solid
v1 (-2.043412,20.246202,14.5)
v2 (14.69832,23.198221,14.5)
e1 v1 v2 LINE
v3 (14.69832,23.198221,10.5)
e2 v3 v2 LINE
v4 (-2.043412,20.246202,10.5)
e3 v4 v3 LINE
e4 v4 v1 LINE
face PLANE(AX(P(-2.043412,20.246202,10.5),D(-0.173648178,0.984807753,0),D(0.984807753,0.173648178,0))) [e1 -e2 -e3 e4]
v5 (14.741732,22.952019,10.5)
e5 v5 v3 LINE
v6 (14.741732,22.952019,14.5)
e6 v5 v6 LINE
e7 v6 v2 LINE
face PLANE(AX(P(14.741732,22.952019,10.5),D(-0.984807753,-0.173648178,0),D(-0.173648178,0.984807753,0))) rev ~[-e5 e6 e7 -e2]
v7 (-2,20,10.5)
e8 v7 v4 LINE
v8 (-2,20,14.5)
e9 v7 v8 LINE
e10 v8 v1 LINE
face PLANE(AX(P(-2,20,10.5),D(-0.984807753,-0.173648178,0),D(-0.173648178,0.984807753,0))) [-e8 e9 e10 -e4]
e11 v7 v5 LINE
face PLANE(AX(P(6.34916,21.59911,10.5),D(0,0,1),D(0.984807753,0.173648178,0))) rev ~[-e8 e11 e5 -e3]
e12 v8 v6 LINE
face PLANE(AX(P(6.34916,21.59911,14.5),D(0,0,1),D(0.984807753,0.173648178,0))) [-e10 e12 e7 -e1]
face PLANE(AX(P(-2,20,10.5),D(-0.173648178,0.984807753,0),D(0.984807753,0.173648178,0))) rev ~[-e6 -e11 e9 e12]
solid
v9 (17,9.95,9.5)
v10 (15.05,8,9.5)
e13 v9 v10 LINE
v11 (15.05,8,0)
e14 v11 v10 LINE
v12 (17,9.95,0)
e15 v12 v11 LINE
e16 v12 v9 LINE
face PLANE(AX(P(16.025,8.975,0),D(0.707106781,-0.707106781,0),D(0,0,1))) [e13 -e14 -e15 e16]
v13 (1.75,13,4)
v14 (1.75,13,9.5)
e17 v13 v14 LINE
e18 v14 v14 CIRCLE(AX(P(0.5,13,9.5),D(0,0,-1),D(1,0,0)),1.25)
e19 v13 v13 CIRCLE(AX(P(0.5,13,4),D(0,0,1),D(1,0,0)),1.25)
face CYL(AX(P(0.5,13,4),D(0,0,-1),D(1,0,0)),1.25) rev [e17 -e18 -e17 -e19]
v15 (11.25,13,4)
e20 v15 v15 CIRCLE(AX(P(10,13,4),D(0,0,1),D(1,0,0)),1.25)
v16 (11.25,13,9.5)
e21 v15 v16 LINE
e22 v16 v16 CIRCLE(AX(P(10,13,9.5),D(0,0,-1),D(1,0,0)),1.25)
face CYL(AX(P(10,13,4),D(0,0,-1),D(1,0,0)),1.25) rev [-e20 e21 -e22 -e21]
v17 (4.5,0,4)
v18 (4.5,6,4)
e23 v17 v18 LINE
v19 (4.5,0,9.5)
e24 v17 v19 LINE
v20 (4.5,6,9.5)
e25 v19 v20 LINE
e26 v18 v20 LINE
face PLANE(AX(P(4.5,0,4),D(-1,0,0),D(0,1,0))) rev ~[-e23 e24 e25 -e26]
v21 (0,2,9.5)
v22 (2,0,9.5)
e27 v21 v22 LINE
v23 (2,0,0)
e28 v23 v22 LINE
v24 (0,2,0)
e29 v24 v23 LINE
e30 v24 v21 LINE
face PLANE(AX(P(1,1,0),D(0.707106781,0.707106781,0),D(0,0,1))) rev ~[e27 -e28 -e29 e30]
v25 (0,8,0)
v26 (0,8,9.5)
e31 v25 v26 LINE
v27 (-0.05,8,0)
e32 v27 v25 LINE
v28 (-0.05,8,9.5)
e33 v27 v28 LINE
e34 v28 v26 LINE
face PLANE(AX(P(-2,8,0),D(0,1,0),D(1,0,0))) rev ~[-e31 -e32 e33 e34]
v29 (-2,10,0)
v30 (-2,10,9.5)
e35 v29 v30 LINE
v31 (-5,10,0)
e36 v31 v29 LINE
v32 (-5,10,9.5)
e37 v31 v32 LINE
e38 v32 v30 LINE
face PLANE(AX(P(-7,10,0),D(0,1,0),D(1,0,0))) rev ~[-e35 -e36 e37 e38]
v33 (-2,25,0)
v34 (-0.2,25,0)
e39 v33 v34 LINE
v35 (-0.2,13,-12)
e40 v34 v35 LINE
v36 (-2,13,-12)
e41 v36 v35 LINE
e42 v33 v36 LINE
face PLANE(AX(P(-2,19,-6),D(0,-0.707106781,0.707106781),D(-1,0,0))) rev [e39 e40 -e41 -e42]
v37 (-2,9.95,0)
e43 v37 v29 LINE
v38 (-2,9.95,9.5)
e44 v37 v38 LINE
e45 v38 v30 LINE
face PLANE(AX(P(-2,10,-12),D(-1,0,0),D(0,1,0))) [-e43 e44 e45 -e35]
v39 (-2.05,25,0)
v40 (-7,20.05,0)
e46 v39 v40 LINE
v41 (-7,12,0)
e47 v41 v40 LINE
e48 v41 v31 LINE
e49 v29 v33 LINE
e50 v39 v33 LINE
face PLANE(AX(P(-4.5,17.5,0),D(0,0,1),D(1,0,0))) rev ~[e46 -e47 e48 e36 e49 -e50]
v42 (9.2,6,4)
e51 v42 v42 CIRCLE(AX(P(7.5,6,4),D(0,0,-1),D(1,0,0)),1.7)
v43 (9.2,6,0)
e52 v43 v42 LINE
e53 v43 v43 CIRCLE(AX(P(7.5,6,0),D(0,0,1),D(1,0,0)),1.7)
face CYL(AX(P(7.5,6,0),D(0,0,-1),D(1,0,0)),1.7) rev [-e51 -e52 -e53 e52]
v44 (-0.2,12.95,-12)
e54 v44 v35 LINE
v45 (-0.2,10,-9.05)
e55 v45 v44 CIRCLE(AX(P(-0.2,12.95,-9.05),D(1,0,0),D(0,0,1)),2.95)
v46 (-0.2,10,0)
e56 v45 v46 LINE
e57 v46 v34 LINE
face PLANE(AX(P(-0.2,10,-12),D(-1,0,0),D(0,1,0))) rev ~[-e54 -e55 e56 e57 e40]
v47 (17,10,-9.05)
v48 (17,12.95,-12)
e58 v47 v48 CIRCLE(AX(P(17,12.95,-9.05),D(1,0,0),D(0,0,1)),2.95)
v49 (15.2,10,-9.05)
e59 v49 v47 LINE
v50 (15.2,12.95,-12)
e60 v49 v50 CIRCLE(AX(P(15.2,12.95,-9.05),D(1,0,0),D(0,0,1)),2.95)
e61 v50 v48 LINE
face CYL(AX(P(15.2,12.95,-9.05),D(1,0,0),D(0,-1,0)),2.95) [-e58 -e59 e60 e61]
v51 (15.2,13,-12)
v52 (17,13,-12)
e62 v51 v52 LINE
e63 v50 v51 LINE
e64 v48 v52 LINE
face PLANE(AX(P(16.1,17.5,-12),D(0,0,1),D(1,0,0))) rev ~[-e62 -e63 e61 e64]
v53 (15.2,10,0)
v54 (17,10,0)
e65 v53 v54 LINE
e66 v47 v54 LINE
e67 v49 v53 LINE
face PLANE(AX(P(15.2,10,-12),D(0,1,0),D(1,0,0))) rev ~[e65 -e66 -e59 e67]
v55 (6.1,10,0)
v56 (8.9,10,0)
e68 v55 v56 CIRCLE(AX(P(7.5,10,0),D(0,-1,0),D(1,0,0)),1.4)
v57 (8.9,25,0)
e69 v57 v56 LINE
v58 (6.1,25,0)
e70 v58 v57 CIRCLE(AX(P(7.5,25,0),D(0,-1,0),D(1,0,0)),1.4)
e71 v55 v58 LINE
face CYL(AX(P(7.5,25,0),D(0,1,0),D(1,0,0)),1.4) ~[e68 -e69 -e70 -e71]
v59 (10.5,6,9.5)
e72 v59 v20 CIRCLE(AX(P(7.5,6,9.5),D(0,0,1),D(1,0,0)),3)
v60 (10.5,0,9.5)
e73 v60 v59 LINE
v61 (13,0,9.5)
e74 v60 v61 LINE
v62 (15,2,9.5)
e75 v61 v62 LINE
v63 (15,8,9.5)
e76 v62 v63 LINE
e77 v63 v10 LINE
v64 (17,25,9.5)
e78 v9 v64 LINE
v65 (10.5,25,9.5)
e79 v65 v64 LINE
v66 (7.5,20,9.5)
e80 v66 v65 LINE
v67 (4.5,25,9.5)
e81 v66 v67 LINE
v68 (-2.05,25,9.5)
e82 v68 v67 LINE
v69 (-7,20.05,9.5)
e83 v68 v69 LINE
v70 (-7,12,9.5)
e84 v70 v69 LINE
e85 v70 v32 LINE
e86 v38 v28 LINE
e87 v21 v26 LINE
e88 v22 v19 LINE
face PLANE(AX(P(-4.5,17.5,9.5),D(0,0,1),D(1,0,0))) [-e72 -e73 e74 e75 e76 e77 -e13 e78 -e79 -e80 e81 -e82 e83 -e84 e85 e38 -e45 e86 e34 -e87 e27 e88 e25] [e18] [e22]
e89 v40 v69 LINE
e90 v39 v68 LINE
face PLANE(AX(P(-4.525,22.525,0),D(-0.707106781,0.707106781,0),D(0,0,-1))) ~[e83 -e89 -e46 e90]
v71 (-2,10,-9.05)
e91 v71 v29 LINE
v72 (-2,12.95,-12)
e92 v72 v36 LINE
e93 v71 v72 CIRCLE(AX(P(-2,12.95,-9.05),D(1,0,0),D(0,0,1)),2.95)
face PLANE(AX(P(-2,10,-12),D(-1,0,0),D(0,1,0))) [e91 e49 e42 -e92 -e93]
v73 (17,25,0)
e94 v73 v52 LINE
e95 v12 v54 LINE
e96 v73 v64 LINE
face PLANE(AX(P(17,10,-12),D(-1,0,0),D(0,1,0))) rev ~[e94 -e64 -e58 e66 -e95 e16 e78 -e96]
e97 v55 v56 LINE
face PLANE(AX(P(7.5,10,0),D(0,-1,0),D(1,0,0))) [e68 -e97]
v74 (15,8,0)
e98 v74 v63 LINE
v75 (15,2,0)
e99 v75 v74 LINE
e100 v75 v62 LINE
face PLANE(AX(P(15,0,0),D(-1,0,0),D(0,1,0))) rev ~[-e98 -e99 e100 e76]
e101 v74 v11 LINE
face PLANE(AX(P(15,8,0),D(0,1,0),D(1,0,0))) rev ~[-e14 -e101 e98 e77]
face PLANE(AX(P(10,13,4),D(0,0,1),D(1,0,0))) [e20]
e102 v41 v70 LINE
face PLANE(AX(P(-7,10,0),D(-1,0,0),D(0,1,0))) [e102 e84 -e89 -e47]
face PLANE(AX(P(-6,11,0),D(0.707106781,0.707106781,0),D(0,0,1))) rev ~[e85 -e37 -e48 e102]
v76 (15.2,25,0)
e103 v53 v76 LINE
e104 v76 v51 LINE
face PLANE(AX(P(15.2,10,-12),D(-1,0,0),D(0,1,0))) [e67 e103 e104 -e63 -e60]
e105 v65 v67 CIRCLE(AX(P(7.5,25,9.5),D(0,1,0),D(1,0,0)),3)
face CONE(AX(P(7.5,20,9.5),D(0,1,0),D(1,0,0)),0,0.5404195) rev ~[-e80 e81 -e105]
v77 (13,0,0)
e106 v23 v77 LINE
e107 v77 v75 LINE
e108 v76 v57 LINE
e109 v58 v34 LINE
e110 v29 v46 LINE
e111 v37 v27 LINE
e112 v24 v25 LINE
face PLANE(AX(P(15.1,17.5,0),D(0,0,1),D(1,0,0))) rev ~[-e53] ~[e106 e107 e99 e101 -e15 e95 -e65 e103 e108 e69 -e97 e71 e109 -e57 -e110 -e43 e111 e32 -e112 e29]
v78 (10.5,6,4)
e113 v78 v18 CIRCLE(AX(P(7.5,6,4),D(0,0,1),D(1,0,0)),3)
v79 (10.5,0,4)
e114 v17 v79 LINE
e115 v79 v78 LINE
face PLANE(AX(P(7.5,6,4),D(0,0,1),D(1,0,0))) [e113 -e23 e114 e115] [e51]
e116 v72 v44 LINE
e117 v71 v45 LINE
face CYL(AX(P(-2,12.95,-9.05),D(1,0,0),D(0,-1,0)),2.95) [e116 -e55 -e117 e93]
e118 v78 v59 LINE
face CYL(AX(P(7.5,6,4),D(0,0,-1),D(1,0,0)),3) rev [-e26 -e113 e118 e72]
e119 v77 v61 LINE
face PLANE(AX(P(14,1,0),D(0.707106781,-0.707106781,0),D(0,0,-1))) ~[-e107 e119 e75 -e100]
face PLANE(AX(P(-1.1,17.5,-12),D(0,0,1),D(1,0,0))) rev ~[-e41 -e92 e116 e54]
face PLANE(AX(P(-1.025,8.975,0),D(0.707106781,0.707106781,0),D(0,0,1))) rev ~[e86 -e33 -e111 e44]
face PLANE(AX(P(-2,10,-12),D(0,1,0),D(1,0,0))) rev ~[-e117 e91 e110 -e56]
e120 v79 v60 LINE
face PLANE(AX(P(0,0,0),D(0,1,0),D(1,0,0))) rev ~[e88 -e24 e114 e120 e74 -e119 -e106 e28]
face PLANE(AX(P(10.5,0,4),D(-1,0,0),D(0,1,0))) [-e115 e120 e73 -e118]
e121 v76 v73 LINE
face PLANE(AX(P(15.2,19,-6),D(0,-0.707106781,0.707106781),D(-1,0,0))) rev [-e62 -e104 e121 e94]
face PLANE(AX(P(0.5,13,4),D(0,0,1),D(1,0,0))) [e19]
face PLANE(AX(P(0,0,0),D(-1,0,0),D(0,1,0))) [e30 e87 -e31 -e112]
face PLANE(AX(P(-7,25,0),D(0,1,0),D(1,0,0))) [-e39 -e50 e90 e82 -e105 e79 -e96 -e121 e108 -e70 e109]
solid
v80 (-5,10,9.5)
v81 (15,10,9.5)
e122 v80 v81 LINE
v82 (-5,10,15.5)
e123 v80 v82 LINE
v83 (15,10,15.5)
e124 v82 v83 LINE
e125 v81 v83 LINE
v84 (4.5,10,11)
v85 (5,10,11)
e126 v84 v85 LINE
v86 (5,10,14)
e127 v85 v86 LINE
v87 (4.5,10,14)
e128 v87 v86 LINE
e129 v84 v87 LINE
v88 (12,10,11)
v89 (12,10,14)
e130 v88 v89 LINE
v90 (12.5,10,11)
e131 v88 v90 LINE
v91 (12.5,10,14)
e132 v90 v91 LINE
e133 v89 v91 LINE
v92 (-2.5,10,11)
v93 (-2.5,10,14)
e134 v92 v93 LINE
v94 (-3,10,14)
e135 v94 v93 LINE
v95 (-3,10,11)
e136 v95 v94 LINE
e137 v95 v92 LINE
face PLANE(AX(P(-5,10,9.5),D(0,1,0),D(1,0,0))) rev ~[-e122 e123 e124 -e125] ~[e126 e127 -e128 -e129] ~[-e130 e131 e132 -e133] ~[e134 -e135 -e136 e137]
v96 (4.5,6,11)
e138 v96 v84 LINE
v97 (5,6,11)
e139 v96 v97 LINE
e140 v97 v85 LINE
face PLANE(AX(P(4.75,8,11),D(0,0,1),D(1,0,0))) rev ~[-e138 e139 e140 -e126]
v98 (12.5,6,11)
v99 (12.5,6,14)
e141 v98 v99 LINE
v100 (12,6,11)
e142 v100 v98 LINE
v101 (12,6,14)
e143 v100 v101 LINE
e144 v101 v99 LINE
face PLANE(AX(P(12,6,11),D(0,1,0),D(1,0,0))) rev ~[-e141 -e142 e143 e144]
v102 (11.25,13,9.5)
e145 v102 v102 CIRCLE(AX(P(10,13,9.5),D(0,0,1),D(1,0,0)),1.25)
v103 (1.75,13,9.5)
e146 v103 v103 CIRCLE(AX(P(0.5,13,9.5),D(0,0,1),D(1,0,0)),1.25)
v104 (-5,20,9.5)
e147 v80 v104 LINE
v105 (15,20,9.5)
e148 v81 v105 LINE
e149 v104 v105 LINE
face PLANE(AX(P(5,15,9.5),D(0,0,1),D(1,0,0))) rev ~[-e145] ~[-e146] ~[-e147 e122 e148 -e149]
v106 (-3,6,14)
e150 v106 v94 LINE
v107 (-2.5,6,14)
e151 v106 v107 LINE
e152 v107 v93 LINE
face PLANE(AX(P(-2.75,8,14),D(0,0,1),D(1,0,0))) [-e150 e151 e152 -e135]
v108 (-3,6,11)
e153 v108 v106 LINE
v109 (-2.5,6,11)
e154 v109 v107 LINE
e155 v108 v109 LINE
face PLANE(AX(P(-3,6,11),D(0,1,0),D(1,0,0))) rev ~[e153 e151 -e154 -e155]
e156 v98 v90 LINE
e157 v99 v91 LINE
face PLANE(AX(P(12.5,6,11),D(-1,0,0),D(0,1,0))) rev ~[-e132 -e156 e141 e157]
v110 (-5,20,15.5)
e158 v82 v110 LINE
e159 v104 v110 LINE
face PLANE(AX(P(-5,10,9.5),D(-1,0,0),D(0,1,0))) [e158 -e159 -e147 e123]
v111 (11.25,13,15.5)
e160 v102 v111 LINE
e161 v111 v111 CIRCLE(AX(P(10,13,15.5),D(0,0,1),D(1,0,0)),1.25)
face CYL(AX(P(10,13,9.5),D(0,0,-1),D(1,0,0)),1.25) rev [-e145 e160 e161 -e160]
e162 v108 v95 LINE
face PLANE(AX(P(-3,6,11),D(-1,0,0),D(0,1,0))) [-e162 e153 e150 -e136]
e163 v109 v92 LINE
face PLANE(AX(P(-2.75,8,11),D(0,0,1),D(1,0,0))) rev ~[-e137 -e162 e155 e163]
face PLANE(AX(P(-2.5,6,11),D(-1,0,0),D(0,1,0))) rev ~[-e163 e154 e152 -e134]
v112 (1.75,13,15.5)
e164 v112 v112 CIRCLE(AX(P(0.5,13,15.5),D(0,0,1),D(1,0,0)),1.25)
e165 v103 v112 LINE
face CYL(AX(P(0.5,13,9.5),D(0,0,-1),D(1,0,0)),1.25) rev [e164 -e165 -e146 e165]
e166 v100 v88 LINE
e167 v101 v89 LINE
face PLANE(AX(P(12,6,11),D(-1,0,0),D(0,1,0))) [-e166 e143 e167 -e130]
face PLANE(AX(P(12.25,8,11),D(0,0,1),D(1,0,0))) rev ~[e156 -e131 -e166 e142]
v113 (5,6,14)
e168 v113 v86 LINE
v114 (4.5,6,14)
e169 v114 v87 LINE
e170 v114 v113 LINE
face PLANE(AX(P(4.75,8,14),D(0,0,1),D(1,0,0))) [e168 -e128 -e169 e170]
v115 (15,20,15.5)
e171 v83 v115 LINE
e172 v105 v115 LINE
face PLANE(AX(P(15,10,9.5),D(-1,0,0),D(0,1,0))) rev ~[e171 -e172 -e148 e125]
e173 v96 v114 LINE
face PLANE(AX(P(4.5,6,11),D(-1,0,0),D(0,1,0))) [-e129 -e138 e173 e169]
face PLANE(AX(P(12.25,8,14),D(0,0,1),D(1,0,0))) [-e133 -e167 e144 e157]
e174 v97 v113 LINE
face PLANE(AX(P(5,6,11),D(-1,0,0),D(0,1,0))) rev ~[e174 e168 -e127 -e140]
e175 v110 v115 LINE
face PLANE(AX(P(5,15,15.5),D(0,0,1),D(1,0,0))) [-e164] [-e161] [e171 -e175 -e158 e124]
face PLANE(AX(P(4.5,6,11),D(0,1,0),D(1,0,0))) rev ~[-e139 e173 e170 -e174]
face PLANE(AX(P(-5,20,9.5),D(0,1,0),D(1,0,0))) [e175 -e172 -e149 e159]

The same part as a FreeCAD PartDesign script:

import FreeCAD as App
import Part
import Sketcher

V = App.Vector


def edges_at(feature, points):
    """Names of the edges that pass closest to the given points."""
    edges = feature.Shape.Edges
    near = lambda p: min(range(len(edges)), key=lambda i: edges[i].distToShape(Part.Vertex(*p))[0])
    return sorted({f"Edge{near(p) + 1}" for p in points})


def add_polygon(sketch, points):
    """Adds a closed chain of lines whose ends are joined by coincident constraints."""
    first, n = sketch.GeometryCount, len(points)
    for a, b in zip(points, points[1:] + points[:1]):
        sketch.addGeometry(Part.LineSegment(App.Vector(*a, 0), App.Vector(*b, 0)), False)
    for i in range(n):
        sketch.addConstraint(Sketcher.Constraint("Coincident", first + i, 2, first + (i + 1) % n, 1))

doc = App.newDocument("Part")
body = doc.addObject("PartDesign::Body", "Body")

# Sketch on XY plane
sketch1 = body.newObject("Sketcher::SketchObject", "Sketch")
sketch1.AttachmentSupport = (doc.getObject("XY_Plane"), [""])
sketch1.MapMode = "FlatFace"
sketch1.addGeometry(Part.Circle(V(5.5, 3, 0), V(0, 0, 1), 1.2), False)
sketch1.addConstraint(Sketcher.Constraint("Diameter", 0, 2.5))
sketch1.addConstraint(Sketcher.Constraint("DistanceY", -1, 1, 0, 3, 3.0))
sketch1.addConstraint(Sketcher.Constraint("DistanceX", -1, 1, 0, 3, 5.5))
pad1 = body.newObject("PartDesign::Pad", "Pad")
pad1.Profile = sketch1
pad1.Length = 6
body2 = doc.addObject("PartDesign::Body", "Body001")

# Sketch on XY plane
sketch2 = body2.newObject("Sketcher::SketchObject", "Sketch001")
sketch2.AttachmentSupport = (doc.getObject("XY_Plane001"), [""])
sketch2.MapMode = "FlatFace"
sketch2.addGeometry(Part.Circle(V(15, 3, 0), V(0, 0, 1), 1.2), False)
sketch2.addConstraint(Sketcher.Constraint("Diameter", 0, 2.5))
sketch2.addConstraint(Sketcher.Constraint("DistanceX", -1, 1, 0, 3, 15.0))
sketch2.addConstraint(Sketcher.Constraint("DistanceY", -1, 1, 0, 3, 3.0))
pad2 = body2.newObject("PartDesign::Pad", "Pad001")
pad2.Profile = sketch2
pad2.Length = 6
body3 = doc.addObject("PartDesign::Body", "Body002")

# Sketch on XY plane
sketch3 = body3.newObject("Sketcher::SketchObject", "Sketch002")
sketch3.AttachmentSupport = (doc.getObject("XY_Plane002"), [""])
sketch3.MapMode = "FlatFace"
sketch3.AttachmentOffset = App.Placement(V(0, 0, 1.5), App.Rotation())
add_polygon(sketch3, [(17, 0), (17, -4), (17.5, -4), (17.5, 0)])  # lines 0-3
sketch3.addConstraint(Sketcher.Constraint("Vertical", 0))
sketch3.addConstraint(Sketcher.Constraint("Horizontal", 1))
sketch3.addConstraint(Sketcher.Constraint("Vertical", 2))
sketch3.addConstraint(Sketcher.Constraint("Horizontal", 3))
sketch3.addConstraint(Sketcher.Constraint("PointOnObject", 2, 2, -1))
sketch3.addConstraint(Sketcher.Constraint("DistanceY", 0, 2, 0, 1, 4.0))
sketch3.addConstraint(Sketcher.Constraint("DistanceX", 1, 1, 1, 2, 0.5))
sketch3.addConstraint(Sketcher.Constraint("DistanceX", -1, 1, 0, 2, 17.0))
pad3 = body3.newObject("PartDesign::Pad", "Pad002")
pad3.Profile = sketch3
pad3.Length = 3
body4 = doc.addObject("PartDesign::Body", "Body003")

# Sketch on XY plane
sketch4 = body4.newObject("Sketcher::SketchObject", "Sketch003")
sketch4.AttachmentSupport = (doc.getObject("XY_Plane003"), [""])
sketch4.MapMode = "FlatFace"
sketch4.AttachmentOffset = App.Placement(V(0, 0, 1.5), App.Rotation())
add_polygon(sketch4, [(9.5, 0), (9.5, -4), (10, -4), (10, 0)])  # lines 0-3
sketch4.addConstraint(Sketcher.Constraint("Vertical", 0))
sketch4.addConstraint(Sketcher.Constraint("Horizontal", 1))
sketch4.addConstraint(Sketcher.Constraint("Vertical", 2))
sketch4.addConstraint(Sketcher.Constraint("Horizontal", 3))
sketch4.addConstraint(Sketcher.Constraint("PointOnObject", 2, 2, -1))
sketch4.addConstraint(Sketcher.Constraint("DistanceY", 0, 2, 0, 1, 4.0))
sketch4.addConstraint(Sketcher.Constraint("DistanceX", 1, 1, 1, 2, 0.5))
sketch4.addConstraint(Sketcher.Constraint("DistanceX", -1, 1, 1, 2, 10.0))
pad4 = body4.newObject("PartDesign::Pad", "Pad003")
pad4.Profile = sketch4
pad4.Length = 3
body5 = doc.addObject("PartDesign::Body", "Body004")

# Sketch on XY plane
sketch5 = body5.newObject("Sketcher::SketchObject", "Sketch004")
sketch5.AttachmentSupport = (doc.getObject("XY_Plane004"), [""])
sketch5.MapMode = "FlatFace"
sketch5.AttachmentOffset = App.Placement(V(0, 0, 1.5), App.Rotation())
add_polygon(sketch5, [(2, 0), (2, -4), (2.5, -4), (2.5, 0)])  # lines 0-3
sketch5.addConstraint(Sketcher.Constraint("Vertical", 0))
sketch5.addConstraint(Sketcher.Constraint("Horizontal", 1))
sketch5.addConstraint(Sketcher.Constraint("Vertical", 2))
sketch5.addConstraint(Sketcher.Constraint("Horizontal", 3))
sketch5.addConstraint(Sketcher.Constraint("PointOnObject", 2, 2, -1))
sketch5.addConstraint(Sketcher.Constraint("DistanceY", 0, 2, 0, 1, 4.0))
sketch5.addConstraint(Sketcher.Constraint("DistanceX", 1, 1, 1, 2, 0.5))
sketch5.addConstraint(Sketcher.Constraint("DistanceX", -1, 1, 0, 2, 2.0))
pad5 = body5.newObject("PartDesign::Pad", "Pad004")
pad5.Profile = sketch5
pad5.Length = 3
body6 = doc.addObject("PartDesign::Body", "Body005")

# Sketch on XY plane
sketch6 = body6.newObject("Sketcher::SketchObject", "Sketch005")
sketch6.AttachmentSupport = (doc.getObject("XY_Plane005"), [""])
sketch6.MapMode = "FlatFace"
add_polygon(sketch6, [(0, 0.25), (0, 0), (17, 0), (17, 0.25)])  # lines 0-3
sketch6.addConstraint(Sketcher.Constraint("Vertical", 0))
sketch6.addConstraint(Sketcher.Constraint("Horizontal", 1))
sketch6.addConstraint(Sketcher.Constraint("Vertical", 2))
sketch6.addConstraint(Sketcher.Constraint("Horizontal", 3))
sketch6.addConstraint(Sketcher.Constraint("Coincident", 0, 2, -1, 1))
sketch6.addConstraint(Sketcher.Constraint("DistanceX", 1, 1, 1, 2, 17.0))
sketch6.addConstraint(Sketcher.Constraint("DistanceY", 0, 2, 0, 1, 0.25))
pad6 = body6.newObject("PartDesign::Pad", "Pad005")
pad6.Profile = sketch6
pad6.Length = 4
body7 = doc.addObject("PartDesign::Body", "Body006")
doc.recompute()

body6.Placement = App.Placement(V(3, 10, 1), App.Rotation(V(0, 0, 1), 10))
boolean = body7.newObject("PartDesign::Boolean", "Boolean")
boolean.Type = "Fuse"
boolean.addObjects([body6])
body8 = doc.addObject("PartDesign::Body", "Body007")
body8.AllowCompound = True

# Sketch on XY plane
sketch7 = body8.newObject("Sketcher::SketchObject", "Sketch006")
sketch7.AttachmentSupport = (doc.getObject("XY_Plane007"), [""])
sketch7.MapMode = "FlatFace"
add_polygon(sketch7, [(0, 10), (0, 0), (20, 0), (20, 10)])  # lines 0-3
sketch7.addConstraint(Sketcher.Constraint("Vertical", 0))
sketch7.addConstraint(Sketcher.Constraint("Horizontal", 1))
sketch7.addConstraint(Sketcher.Constraint("Vertical", 2))
sketch7.addConstraint(Sketcher.Constraint("Horizontal", 3))
sketch7.addConstraint(Sketcher.Constraint("Coincident", 0, 2, -1, 1))
sketch7.addConstraint(Sketcher.Constraint("DistanceX", 1, 1, 1, 2, 20.0))
sketch7.addConstraint(Sketcher.Constraint("DistanceY", 0, 2, 0, 1, 10.0))
pad7 = body8.newObject("PartDesign::Pad", "Pad006")
pad7.Profile = sketch7
pad7.Length = 6
doc.recompute()

boolean2 = body8.newObject("PartDesign::Boolean", "Boolean001")
boolean2.Type = "Fuse"
boolean2.addObjects([body3])
doc.recompute()

boolean3 = body8.newObject("PartDesign::Boolean", "Boolean002")
boolean3.Type = "Fuse"
boolean3.addObjects([body4])
doc.recompute()

boolean4 = body8.newObject("PartDesign::Boolean", "Boolean003")
boolean4.Type = "Fuse"
boolean4.addObjects([body5])
doc.recompute()

boolean5 = body8.newObject("PartDesign::Boolean", "Boolean004")
boolean5.Type = "Fuse"
boolean5.addObjects([body7])
doc.recompute()

boolean6 = body8.newObject("PartDesign::Boolean", "Boolean005")
boolean6.Type = "Cut"
boolean6.addObjects([body2])
doc.recompute()

boolean7 = body8.newObject("PartDesign::Boolean", "Boolean006")
boolean7.Type = "Cut"
boolean7.addObjects([body])
body9 = doc.addObject("PartDesign::Body", "Body008")
body9.AllowCompound = True
doc.recompute()

body8.Placement = App.Placement(V(-5, 10, 9.5), App.Rotation(V(0, 0, 1), 0))
boolean8 = body9.newObject("PartDesign::Boolean", "Boolean007")
boolean8.Type = "Fuse"
boolean8.addObjects([body8])
body10 = doc.addObject("PartDesign::Body", "Body009")

# Sketch on XZ plane
sketch8 = body10.newObject("Sketcher::SketchObject", "Sketch007")
sketch8.AttachmentSupport = (doc.getObject("XZ_Plane009"), [""])
sketch8.MapMode = "FlatFace"
add_polygon(sketch8, [(0, 0), (3, 5), (0, 5)])  # lines 0-2
sketch8.addConstraint(Sketcher.Constraint("Horizontal", 1))
sketch8.addConstraint(Sketcher.Constraint("Vertical", 2))
sketch8.addConstraint(Sketcher.Constraint("Coincident", 2, 2, -1, 1))
sketch8.addConstraint(Sketcher.Constraint("DistanceX", 1, 2, 1, 1, 3.0))
sketch8.addConstraint(Sketcher.Constraint("DistanceY", 2, 2, 2, 1, 5.0))
revolution = body10.newObject("PartDesign::Revolution", "Revolution")
revolution.Profile = sketch8
revolution.ReferenceAxis = (sketch8, ["V_Axis"])
revolution.Angle = 360
body11 = doc.addObject("PartDesign::Body", "Body010")
doc.recompute()

body10.Placement = App.Placement(V(0, 0, 0), App.Rotation(V(1, 0, 0), 270))
boolean9 = body11.newObject("PartDesign::Boolean", "Boolean008")
boolean9.Type = "Fuse"
boolean9.addObjects([body10])
body12 = doc.addObject("PartDesign::Body", "Body011")
doc.recompute()

body11.Placement = App.Placement(V(7.5, 20, 9.5), App.Rotation(V(0, 0, 1), 0))
boolean10 = body12.newObject("PartDesign::Boolean", "Boolean009")
boolean10.Type = "Fuse"
boolean10.addObjects([body11])
body13 = doc.addObject("PartDesign::Body", "Body012")

# Sketch on XY plane
sketch9 = body13.newObject("Sketcher::SketchObject", "Sketch008")
sketch9.AttachmentSupport = (doc.getObject("XY_Plane012"), [""])
sketch9.MapMode = "FlatFace"
sketch9.addGeometry(Part.Circle(V(7.5, 6, 0), V(0, 0, 1), 1.7), False)
sketch9.addConstraint(Sketcher.Constraint("Diameter", 0, 3.4))
sketch9.addConstraint(Sketcher.Constraint("DistanceY", -1, 1, 0, 3, 6.0))
sketch9.addConstraint(Sketcher.Constraint("DistanceX", -1, 1, 0, 3, 7.5))
pad8 = body13.newObject("PartDesign::Pad", "Pad007")
pad8.Profile = sketch9
pad8.Length = 9.5
body14 = doc.addObject("PartDesign::Body", "Body013")

# Sketch on XY plane
sketch10 = body14.newObject("Sketcher::SketchObject", "Sketch009")
sketch10.AttachmentSupport = (doc.getObject("XY_Plane013"), [""])
sketch10.MapMode = "FlatFace"
sketch10.AttachmentOffset = App.Placement(V(0, 0, 4), App.Rotation())
sketch10.addGeometry(Part.Circle(V(7.5, 6, 0), V(0, 0, 1), 3), False)
sketch10.addConstraint(Sketcher.Constraint("Diameter", 0, 6.0))
sketch10.addConstraint(Sketcher.Constraint("DistanceY", -1, 1, 0, 3, 6.0))
sketch10.addConstraint(Sketcher.Constraint("DistanceX", -1, 1, 0, 3, 7.5))
pad9 = body14.newObject("PartDesign::Pad", "Pad008")
pad9.Profile = sketch10
pad9.Length = 5.5
body15 = doc.addObject("PartDesign::Body", "Body014")

# Sketch on XY plane
sketch11 = body15.newObject("Sketcher::SketchObject", "Sketch010")
sketch11.AttachmentSupport = (doc.getObject("XY_Plane014"), [""])
sketch11.MapMode = "FlatFace"
sketch11.AttachmentOffset = App.Placement(V(0, 0, 4), App.Rotation())
add_polygon(sketch11, [(4, 6), (4, 0), (10, 0), (10, 6)])  # lines 0-3
sketch11.addConstraint(Sketcher.Constraint("Vertical", 0))
sketch11.addConstraint(Sketcher.Constraint("Horizontal", 1))
sketch11.addConstraint(Sketcher.Constraint("Vertical", 2))
sketch11.addConstraint(Sketcher.Constraint("Horizontal", 3))
sketch11.addConstraint(Sketcher.Constraint("PointOnObject", 0, 2, -1))
sketch11.addConstraint(Sketcher.Constraint("Equal", 3, 0))
sketch11.addConstraint(Sketcher.Constraint("DistanceX", 1, 1, 1, 2, 6.0))
sketch11.addConstraint(Sketcher.Constraint("DistanceX", -1, 1, 0, 2, 4.5))
pad10 = body15.newObject("PartDesign::Pad", "Pad009")
pad10.Profile = sketch11
pad10.Length = 5.5
doc.recompute()

boolean11 = body15.newObject("PartDesign::Boolean", "Boolean010")
boolean11.Type = "Fuse"
boolean11.addObjects([body14])
body16 = doc.addObject("PartDesign::Body", "Body015")

# Sketch on XY plane
sketch12 = body16.newObject("Sketcher::SketchObject", "Sketch011")
sketch12.AttachmentSupport = (doc.getObject("XY_Plane015"), [""])
sketch12.MapMode = "FlatFace"
sketch12.AttachmentOffset = App.Placement(V(0, 0, 4), App.Rotation())
sketch12.addGeometry(Part.Circle(V(10, 13, 0), V(0, 0, 1), 1.2), False)
sketch12.addConstraint(Sketcher.Constraint("Diameter", 0, 2.5))
sketch12.addConstraint(Sketcher.Constraint("DistanceX", -1, 1, 0, 3, 10.0))
sketch12.addConstraint(Sketcher.Constraint("DistanceY", -1, 1, 0, 3, 13.0))
pad11 = body16.newObject("PartDesign::Pad", "Pad010")
pad11.Profile = sketch12
pad11.Length = 6
body17 = doc.addObject("PartDesign::Body", "Body016")
body17.AllowCompound = True

# Sketch on XY plane
sketch13 = body17.newObject("Sketcher::SketchObject", "Sketch012")
sketch13.AttachmentSupport = (doc.getObject("XY_Plane016"), [""])
sketch13.MapMode = "FlatFace"
sketch13.AttachmentOffset = App.Placement(V(0, 0, 4), App.Rotation())
sketch13.addGeometry(Part.Circle(V(0.5, 13, 0), V(0, 0, 1), 1.2), False)
sketch13.addConstraint(Sketcher.Constraint("Diameter", 0, 2.5))
sketch13.addConstraint(Sketcher.Constraint("DistanceY", -1, 1, 0, 3, 13.0))
sketch13.addConstraint(Sketcher.Constraint("DistanceX", -1, 1, 0, 3, 0.5))
pad12 = body17.newObject("PartDesign::Pad", "Pad011")
pad12.Profile = sketch13
pad12.Length = 6
doc.recompute()

boolean12 = body17.newObject("PartDesign::Boolean", "Boolean011")
boolean12.Type = "Fuse"
boolean12.addObjects([body12])
doc.recompute()

boolean13 = body17.newObject("PartDesign::Boolean", "Boolean012")
boolean13.Type = "Fuse"
boolean13.addObjects([body13])
doc.recompute()

boolean14 = body17.newObject("PartDesign::Boolean", "Boolean013")
boolean14.Type = "Fuse"
boolean14.addObjects([body15])
doc.recompute()

boolean15 = body17.newObject("PartDesign::Boolean", "Boolean014")
boolean15.Type = "Fuse"
boolean15.addObjects([body16])
body18 = doc.addObject("PartDesign::Body", "Body017")

# Sketch on XY plane
sketch14 = body18.newObject("Sketcher::SketchObject", "Sketch013")
sketch14.AttachmentSupport = (doc.getObject("XY_Plane017"), [""])
sketch14.MapMode = "FlatFace"
add_polygon(sketch14, [(15, 10), (15, 8), (17, 8), (17, 10)])  # lines 0-3
sketch14.addConstraint(Sketcher.Constraint("Vertical", 0))
sketch14.addConstraint(Sketcher.Constraint("Horizontal", 1))
sketch14.addConstraint(Sketcher.Constraint("Vertical", 2))
sketch14.addConstraint(Sketcher.Constraint("Horizontal", 3))
sketch14.addConstraint(Sketcher.Constraint("Equal", 3, 0))
sketch14.addConstraint(Sketcher.Constraint("DistanceX", 1, 1, 1, 2, 2.0))
sketch14.addConstraint(Sketcher.Constraint("DistanceX", -1, 1, 0, 2, 15.0))
sketch14.addConstraint(Sketcher.Constraint("DistanceY", -1, 1, 0, 2, 8.0))
pad13 = body18.newObject("PartDesign::Pad", "Pad012")
pad13.Profile = sketch14
pad13.Length = 9.5
body19 = doc.addObject("PartDesign::Body", "Body018")

# Sketch on XY plane
sketch15 = body19.newObject("Sketcher::SketchObject", "Sketch014")
sketch15.AttachmentSupport = (doc.getObject("XY_Plane018"), [""])
sketch15.MapMode = "FlatFace"
add_polygon(sketch15, [(-2, 10), (-2, 8), (0, 8), (0, 10)])  # lines 0-3
sketch15.addConstraint(Sketcher.Constraint("Vertical", 0))
sketch15.addConstraint(Sketcher.Constraint("Horizontal", 1))
sketch15.addConstraint(Sketcher.Constraint("Vertical", 2))
sketch15.addConstraint(Sketcher.Constraint("Horizontal", 3))
sketch15.addConstraint(Sketcher.Constraint("PointOnObject", 1, 2, -2))
sketch15.addConstraint(Sketcher.Constraint("Equal", 3, 0))
sketch15.addConstraint(Sketcher.Constraint("DistanceX", 1, 1, 1, 2, 2.0))
sketch15.addConstraint(Sketcher.Constraint("DistanceY", -1, 1, 0, 2, 8.0))
pad14 = body19.newObject("PartDesign::Pad", "Pad013")
pad14.Profile = sketch15
pad14.Length = 9.5
body20 = doc.addObject("PartDesign::Body", "Body019")

# Sketch on XY plane
sketch16 = body20.newObject("Sketcher::SketchObject", "Sketch015")
sketch16.AttachmentSupport = (doc.getObject("XY_Plane019"), [""])
sketch16.MapMode = "FlatFace"
sketch16.AttachmentOffset = App.Placement(V(0, 0, -12), App.Rotation())
add_polygon(sketch16, [(-2, 25), (-2, 10), (-0.2, 10), (-0.2, 25)])  # lines 0-3
sketch16.addConstraint(Sketcher.Constraint("Vertical", 0))
sketch16.addConstraint(Sketcher.Constraint("Horizontal", 1))
sketch16.addConstraint(Sketcher.Constraint("Vertical", 2))
sketch16.addConstraint(Sketcher.Constraint("Horizontal", 3))
sketch16.addConstraint(Sketcher.Constraint("DistanceY", 0, 2, 0, 1, 15.0))
sketch16.addConstraint(Sketcher.Constraint("DistanceX", 1, 1, 1, 2, 1.8))
sketch16.addConstraint(Sketcher.Constraint("DistanceX", 0, 2, -1, 1, 2.0))
sketch16.addConstraint(Sketcher.Constraint("DistanceY", -1, 1, 0, 2, 10.0))
pad15 = body20.newObject("PartDesign::Pad", "Pad014")
pad15.Profile = sketch16
pad15.Length = 21.5
body21 = doc.addObject("PartDesign::Body", "Body020")

# Sketch on XY plane
sketch17 = body21.newObject("Sketcher::SketchObject", "Sketch016")
sketch17.AttachmentSupport = (doc.getObject("XY_Plane020"), [""])
sketch17.MapMode = "FlatFace"
sketch17.AttachmentOffset = App.Placement(V(0, 0, -12), App.Rotation())
add_polygon(sketch17, [(15.2, 25), (15.2, 10), (17, 10), (17, 25)])  # lines 0-3
sketch17.addConstraint(Sketcher.Constraint("Vertical", 0))
sketch17.addConstraint(Sketcher.Constraint("Horizontal", 1))
sketch17.addConstraint(Sketcher.Constraint("Vertical", 2))
sketch17.addConstraint(Sketcher.Constraint("Horizontal", 3))
sketch17.addConstraint(Sketcher.Constraint("DistanceY", 0, 2, 0, 1, 15.0))
sketch17.addConstraint(Sketcher.Constraint("DistanceX", 1, 1, 1, 2, 1.8))
sketch17.addConstraint(Sketcher.Constraint("DistanceY", -1, 1, 0, 2, 10.0))
sketch17.addConstraint(Sketcher.Constraint("DistanceX", -1, 1, 1, 2, 17.0))
pad16 = body21.newObject("PartDesign::Pad", "Pad015")
pad16.Profile = sketch17
pad16.Length = 21.5
body22 = doc.addObject("PartDesign::Body", "Body021")

# Sketch on XY plane
sketch18 = body22.newObject("Sketcher::SketchObject", "Sketch017")
sketch18.AttachmentSupport = (doc.getObject("XY_Plane021"), [""])
sketch18.MapMode = "FlatFace"
sketch18.addGeometry(Part.Circle(V(0, 0, 0), V(0, 0, 1), 1.4), False)
sketch18.addConstraint(Sketcher.Constraint("Coincident", 0, 3, -1, 1))
sketch18.addConstraint(Sketcher.Constraint("Diameter", 0, 2.8))
pad17 = body22.newObject("PartDesign::Pad", "Pad016")
pad17.Profile = sketch18
pad17.Length = 15
body23 = doc.addObject("PartDesign::Body", "Body022")
doc.recompute()

body22.Placement = App.Placement(V(0, 0, 0), App.Rotation(V(1, 0, 0), 90))
boolean16 = body23.newObject("PartDesign::Boolean", "Boolean015")
boolean16.Type = "Fuse"
boolean16.addObjects([body22])
body24 = doc.addObject("PartDesign::Body", "Body023")
doc.recompute()

body23.Placement = App.Placement(V(7.5, 25, 0), App.Rotation(V(0, 0, 1), 0))
boolean17 = body24.newObject("PartDesign::Boolean", "Boolean016")
boolean17.Type = "Fuse"
boolean17.addObjects([body23])
body25 = doc.addObject("PartDesign::Body", "Body024")

# Sketch on XY plane
sketch19 = body25.newObject("Sketcher::SketchObject", "Sketch018")
sketch19.AttachmentSupport = (doc.getObject("XY_Plane024"), [""])
sketch19.MapMode = "FlatFace"
add_polygon(sketch19, [(-0.2, 25), (-0.2, 10), (0, 10), (0, 25)])  # lines 0-3
sketch19.addConstraint(Sketcher.Constraint("Vertical", 0))
sketch19.addConstraint(Sketcher.Constraint("Horizontal", 1))
sketch19.addConstraint(Sketcher.Constraint("Vertical", 2))
sketch19.addConstraint(Sketcher.Constraint("Horizontal", 3))
sketch19.addConstraint(Sketcher.Constraint("PointOnObject", 1, 2, -2))
sketch19.addConstraint(Sketcher.Constraint("DistanceY", 0, 2, 0, 1, 15.0))
sketch19.addConstraint(Sketcher.Constraint("DistanceX", 1, 1, 1, 2, 0.2))
sketch19.addConstraint(Sketcher.Constraint("DistanceY", -1, 1, 0, 2, 10.0))
pad18 = body25.newObject("PartDesign::Pad", "Pad017")
pad18.Profile = sketch19
pad18.Length = 9.5
body26 = doc.addObject("PartDesign::Body", "Body025")

# Sketch on XY plane
sketch20 = body26.newObject("Sketcher::SketchObject", "Sketch019")
sketch20.AttachmentSupport = (doc.getObject("XY_Plane025"), [""])
sketch20.MapMode = "FlatFace"
add_polygon(sketch20, [(15, 25), (15, 10), (15.2, 10), (15.2, 25)])  # lines 0-3
sketch20.addConstraint(Sketcher.Constraint("Vertical", 0))
sketch20.addConstraint(Sketcher.Constraint("Horizontal", 1))
sketch20.addConstraint(Sketcher.Constraint("Vertical", 2))
sketch20.addConstraint(Sketcher.Constraint("Horizontal", 3))
sketch20.addConstraint(Sketcher.Constraint("DistanceY", 0, 2, 0, 1, 15.0))
sketch20.addConstraint(Sketcher.Constraint("DistanceX", 1, 1, 1, 2, 0.2))
sketch20.addConstraint(Sketcher.Constraint("DistanceX", -1, 1, 0, 2, 15.0))
sketch20.addConstraint(Sketcher.Constraint("DistanceY", -1, 1, 0, 2, 10.0))
pad19 = body26.newObject("PartDesign::Pad", "Pad018")
pad19.Profile = sketch20
pad19.Length = 9.5
body27 = doc.addObject("PartDesign::Body", "Body026")

# Sketch on XY plane
sketch21 = body27.newObject("Sketcher::SketchObject", "Sketch020")
sketch21.AttachmentSupport = (doc.getObject("XY_Plane026"), [""])
sketch21.MapMode = "FlatFace"
add_polygon(sketch21, [(-7, 25), (-7, 10), (-2, 10), (-2, 25)])  # lines 0-3
sketch21.addConstraint(Sketcher.Constraint("Vertical", 0))
sketch21.addConstraint(Sketcher.Constraint("Horizontal", 1))
sketch21.addConstraint(Sketcher.Constraint("Vertical", 2))
sketch21.addConstraint(Sketcher.Constraint("Horizontal", 3))
sketch21.addConstraint(Sketcher.Constraint("DistanceX", 1, 1, 1, 2, 5.0))
sketch21.addConstraint(Sketcher.Constraint("DistanceY", 0, 2, 0, 1, 15.0))
sketch21.addConstraint(Sketcher.Constraint("DistanceX", 0, 2, -1, 1, 7.0))
sketch21.addConstraint(Sketcher.Constraint("DistanceY", -1, 1, 0, 2, 10.0))
pad20 = body27.newObject("PartDesign::Pad", "Pad019")
pad20.Profile = sketch21
pad20.Length = 9.5
body28 = doc.addObject("PartDesign::Body", "Body027")

# Sketch on XY plane
sketch22 = body28.newObject("Sketcher::SketchObject", "Sketch021")
sketch22.AttachmentSupport = (doc.getObject("XY_Plane027"), [""])
sketch22.MapMode = "FlatFace"
add_polygon(sketch22, [(0, 25), (0, 0), (15, 0), (15, 25)])  # lines 0-3
sketch22.addConstraint(Sketcher.Constraint("Vertical", 0))
sketch22.addConstraint(Sketcher.Constraint("Horizontal", 1))
sketch22.addConstraint(Sketcher.Constraint("Vertical", 2))
sketch22.addConstraint(Sketcher.Constraint("Horizontal", 3))
sketch22.addConstraint(Sketcher.Constraint("Coincident", 0, 2, -1, 1))
sketch22.addConstraint(Sketcher.Constraint("DistanceX", 1, 1, 1, 2, 15.0))
sketch22.addConstraint(Sketcher.Constraint("DistanceY", 0, 2, 0, 1, 25.0))
pad21 = body28.newObject("PartDesign::Pad", "Pad020")
pad21.Profile = sketch22
pad21.Length = 9.5
doc.recompute()

boolean18 = body28.newObject("PartDesign::Boolean", "Boolean017")
boolean18.Type = "Fuse"
boolean18.addObjects([body18])
doc.recompute()

boolean19 = body28.newObject("PartDesign::Boolean", "Boolean018")
boolean19.Type = "Fuse"
boolean19.addObjects([body19])
doc.recompute()

boolean20 = body28.newObject("PartDesign::Boolean", "Boolean019")
boolean20.Type = "Fuse"
boolean20.addObjects([body20])
doc.recompute()

boolean21 = body28.newObject("PartDesign::Boolean", "Boolean020")
boolean21.Type = "Fuse"
boolean21.addObjects([body21])
doc.recompute()

boolean22 = body28.newObject("PartDesign::Boolean", "Boolean021")
boolean22.Type = "Fuse"
boolean22.addObjects([body24])
doc.recompute()

boolean23 = body28.newObject("PartDesign::Boolean", "Boolean022")
boolean23.Type = "Fuse"
boolean23.addObjects([body25])
doc.recompute()

boolean24 = body28.newObject("PartDesign::Boolean", "Boolean023")
boolean24.Type = "Fuse"
boolean24.addObjects([body26])
doc.recompute()

boolean25 = body28.newObject("PartDesign::Boolean", "Boolean024")
boolean25.Type = "Fuse"
boolean25.addObjects([body27])
doc.recompute()

boolean26 = body28.newObject("PartDesign::Boolean", "Boolean025")
boolean26.Type = "Cut"
boolean26.addObjects([body17])
doc.recompute()

chamfer = body28.newObject("PartDesign::Chamfer", "Chamfer")
chamfer.Base = (boolean26, edges_at(boolean26, [(-1.1, 25, -12), (16.1, 25, -12)]))
chamfer.Size = 12
doc.recompute()

chamfer2 = body28.newObject("PartDesign::Chamfer", "Chamfer001")
chamfer2.Base = (chamfer, edges_at(chamfer, [(-7, 25, 4.75)]))
chamfer2.Size = 4.95
doc.recompute()

chamfer3 = body28.newObject("PartDesign::Chamfer", "Chamfer002")
chamfer3.Base = (chamfer2, edges_at(chamfer2, [(-7, 10, 4.75), (0, 0, 4.75), (15, 0, 4.75)]))
chamfer3.Size = 2
doc.recompute()

chamfer4 = body28.newObject("PartDesign::Chamfer", "Chamfer003")
chamfer4.Base = (chamfer3, edges_at(chamfer3, [(-2, 8, 4.75), (17, 8, 4.75)]))
chamfer4.Size = 1.95
doc.recompute()

fillet = body28.newObject("PartDesign::Fillet", "Fillet")
fillet.Base = (chamfer4, edges_at(chamfer4, [(-1.1, 10, -12), (16.1, 10, -12)]))
fillet.Radius = 2.95

doc.recompute()
